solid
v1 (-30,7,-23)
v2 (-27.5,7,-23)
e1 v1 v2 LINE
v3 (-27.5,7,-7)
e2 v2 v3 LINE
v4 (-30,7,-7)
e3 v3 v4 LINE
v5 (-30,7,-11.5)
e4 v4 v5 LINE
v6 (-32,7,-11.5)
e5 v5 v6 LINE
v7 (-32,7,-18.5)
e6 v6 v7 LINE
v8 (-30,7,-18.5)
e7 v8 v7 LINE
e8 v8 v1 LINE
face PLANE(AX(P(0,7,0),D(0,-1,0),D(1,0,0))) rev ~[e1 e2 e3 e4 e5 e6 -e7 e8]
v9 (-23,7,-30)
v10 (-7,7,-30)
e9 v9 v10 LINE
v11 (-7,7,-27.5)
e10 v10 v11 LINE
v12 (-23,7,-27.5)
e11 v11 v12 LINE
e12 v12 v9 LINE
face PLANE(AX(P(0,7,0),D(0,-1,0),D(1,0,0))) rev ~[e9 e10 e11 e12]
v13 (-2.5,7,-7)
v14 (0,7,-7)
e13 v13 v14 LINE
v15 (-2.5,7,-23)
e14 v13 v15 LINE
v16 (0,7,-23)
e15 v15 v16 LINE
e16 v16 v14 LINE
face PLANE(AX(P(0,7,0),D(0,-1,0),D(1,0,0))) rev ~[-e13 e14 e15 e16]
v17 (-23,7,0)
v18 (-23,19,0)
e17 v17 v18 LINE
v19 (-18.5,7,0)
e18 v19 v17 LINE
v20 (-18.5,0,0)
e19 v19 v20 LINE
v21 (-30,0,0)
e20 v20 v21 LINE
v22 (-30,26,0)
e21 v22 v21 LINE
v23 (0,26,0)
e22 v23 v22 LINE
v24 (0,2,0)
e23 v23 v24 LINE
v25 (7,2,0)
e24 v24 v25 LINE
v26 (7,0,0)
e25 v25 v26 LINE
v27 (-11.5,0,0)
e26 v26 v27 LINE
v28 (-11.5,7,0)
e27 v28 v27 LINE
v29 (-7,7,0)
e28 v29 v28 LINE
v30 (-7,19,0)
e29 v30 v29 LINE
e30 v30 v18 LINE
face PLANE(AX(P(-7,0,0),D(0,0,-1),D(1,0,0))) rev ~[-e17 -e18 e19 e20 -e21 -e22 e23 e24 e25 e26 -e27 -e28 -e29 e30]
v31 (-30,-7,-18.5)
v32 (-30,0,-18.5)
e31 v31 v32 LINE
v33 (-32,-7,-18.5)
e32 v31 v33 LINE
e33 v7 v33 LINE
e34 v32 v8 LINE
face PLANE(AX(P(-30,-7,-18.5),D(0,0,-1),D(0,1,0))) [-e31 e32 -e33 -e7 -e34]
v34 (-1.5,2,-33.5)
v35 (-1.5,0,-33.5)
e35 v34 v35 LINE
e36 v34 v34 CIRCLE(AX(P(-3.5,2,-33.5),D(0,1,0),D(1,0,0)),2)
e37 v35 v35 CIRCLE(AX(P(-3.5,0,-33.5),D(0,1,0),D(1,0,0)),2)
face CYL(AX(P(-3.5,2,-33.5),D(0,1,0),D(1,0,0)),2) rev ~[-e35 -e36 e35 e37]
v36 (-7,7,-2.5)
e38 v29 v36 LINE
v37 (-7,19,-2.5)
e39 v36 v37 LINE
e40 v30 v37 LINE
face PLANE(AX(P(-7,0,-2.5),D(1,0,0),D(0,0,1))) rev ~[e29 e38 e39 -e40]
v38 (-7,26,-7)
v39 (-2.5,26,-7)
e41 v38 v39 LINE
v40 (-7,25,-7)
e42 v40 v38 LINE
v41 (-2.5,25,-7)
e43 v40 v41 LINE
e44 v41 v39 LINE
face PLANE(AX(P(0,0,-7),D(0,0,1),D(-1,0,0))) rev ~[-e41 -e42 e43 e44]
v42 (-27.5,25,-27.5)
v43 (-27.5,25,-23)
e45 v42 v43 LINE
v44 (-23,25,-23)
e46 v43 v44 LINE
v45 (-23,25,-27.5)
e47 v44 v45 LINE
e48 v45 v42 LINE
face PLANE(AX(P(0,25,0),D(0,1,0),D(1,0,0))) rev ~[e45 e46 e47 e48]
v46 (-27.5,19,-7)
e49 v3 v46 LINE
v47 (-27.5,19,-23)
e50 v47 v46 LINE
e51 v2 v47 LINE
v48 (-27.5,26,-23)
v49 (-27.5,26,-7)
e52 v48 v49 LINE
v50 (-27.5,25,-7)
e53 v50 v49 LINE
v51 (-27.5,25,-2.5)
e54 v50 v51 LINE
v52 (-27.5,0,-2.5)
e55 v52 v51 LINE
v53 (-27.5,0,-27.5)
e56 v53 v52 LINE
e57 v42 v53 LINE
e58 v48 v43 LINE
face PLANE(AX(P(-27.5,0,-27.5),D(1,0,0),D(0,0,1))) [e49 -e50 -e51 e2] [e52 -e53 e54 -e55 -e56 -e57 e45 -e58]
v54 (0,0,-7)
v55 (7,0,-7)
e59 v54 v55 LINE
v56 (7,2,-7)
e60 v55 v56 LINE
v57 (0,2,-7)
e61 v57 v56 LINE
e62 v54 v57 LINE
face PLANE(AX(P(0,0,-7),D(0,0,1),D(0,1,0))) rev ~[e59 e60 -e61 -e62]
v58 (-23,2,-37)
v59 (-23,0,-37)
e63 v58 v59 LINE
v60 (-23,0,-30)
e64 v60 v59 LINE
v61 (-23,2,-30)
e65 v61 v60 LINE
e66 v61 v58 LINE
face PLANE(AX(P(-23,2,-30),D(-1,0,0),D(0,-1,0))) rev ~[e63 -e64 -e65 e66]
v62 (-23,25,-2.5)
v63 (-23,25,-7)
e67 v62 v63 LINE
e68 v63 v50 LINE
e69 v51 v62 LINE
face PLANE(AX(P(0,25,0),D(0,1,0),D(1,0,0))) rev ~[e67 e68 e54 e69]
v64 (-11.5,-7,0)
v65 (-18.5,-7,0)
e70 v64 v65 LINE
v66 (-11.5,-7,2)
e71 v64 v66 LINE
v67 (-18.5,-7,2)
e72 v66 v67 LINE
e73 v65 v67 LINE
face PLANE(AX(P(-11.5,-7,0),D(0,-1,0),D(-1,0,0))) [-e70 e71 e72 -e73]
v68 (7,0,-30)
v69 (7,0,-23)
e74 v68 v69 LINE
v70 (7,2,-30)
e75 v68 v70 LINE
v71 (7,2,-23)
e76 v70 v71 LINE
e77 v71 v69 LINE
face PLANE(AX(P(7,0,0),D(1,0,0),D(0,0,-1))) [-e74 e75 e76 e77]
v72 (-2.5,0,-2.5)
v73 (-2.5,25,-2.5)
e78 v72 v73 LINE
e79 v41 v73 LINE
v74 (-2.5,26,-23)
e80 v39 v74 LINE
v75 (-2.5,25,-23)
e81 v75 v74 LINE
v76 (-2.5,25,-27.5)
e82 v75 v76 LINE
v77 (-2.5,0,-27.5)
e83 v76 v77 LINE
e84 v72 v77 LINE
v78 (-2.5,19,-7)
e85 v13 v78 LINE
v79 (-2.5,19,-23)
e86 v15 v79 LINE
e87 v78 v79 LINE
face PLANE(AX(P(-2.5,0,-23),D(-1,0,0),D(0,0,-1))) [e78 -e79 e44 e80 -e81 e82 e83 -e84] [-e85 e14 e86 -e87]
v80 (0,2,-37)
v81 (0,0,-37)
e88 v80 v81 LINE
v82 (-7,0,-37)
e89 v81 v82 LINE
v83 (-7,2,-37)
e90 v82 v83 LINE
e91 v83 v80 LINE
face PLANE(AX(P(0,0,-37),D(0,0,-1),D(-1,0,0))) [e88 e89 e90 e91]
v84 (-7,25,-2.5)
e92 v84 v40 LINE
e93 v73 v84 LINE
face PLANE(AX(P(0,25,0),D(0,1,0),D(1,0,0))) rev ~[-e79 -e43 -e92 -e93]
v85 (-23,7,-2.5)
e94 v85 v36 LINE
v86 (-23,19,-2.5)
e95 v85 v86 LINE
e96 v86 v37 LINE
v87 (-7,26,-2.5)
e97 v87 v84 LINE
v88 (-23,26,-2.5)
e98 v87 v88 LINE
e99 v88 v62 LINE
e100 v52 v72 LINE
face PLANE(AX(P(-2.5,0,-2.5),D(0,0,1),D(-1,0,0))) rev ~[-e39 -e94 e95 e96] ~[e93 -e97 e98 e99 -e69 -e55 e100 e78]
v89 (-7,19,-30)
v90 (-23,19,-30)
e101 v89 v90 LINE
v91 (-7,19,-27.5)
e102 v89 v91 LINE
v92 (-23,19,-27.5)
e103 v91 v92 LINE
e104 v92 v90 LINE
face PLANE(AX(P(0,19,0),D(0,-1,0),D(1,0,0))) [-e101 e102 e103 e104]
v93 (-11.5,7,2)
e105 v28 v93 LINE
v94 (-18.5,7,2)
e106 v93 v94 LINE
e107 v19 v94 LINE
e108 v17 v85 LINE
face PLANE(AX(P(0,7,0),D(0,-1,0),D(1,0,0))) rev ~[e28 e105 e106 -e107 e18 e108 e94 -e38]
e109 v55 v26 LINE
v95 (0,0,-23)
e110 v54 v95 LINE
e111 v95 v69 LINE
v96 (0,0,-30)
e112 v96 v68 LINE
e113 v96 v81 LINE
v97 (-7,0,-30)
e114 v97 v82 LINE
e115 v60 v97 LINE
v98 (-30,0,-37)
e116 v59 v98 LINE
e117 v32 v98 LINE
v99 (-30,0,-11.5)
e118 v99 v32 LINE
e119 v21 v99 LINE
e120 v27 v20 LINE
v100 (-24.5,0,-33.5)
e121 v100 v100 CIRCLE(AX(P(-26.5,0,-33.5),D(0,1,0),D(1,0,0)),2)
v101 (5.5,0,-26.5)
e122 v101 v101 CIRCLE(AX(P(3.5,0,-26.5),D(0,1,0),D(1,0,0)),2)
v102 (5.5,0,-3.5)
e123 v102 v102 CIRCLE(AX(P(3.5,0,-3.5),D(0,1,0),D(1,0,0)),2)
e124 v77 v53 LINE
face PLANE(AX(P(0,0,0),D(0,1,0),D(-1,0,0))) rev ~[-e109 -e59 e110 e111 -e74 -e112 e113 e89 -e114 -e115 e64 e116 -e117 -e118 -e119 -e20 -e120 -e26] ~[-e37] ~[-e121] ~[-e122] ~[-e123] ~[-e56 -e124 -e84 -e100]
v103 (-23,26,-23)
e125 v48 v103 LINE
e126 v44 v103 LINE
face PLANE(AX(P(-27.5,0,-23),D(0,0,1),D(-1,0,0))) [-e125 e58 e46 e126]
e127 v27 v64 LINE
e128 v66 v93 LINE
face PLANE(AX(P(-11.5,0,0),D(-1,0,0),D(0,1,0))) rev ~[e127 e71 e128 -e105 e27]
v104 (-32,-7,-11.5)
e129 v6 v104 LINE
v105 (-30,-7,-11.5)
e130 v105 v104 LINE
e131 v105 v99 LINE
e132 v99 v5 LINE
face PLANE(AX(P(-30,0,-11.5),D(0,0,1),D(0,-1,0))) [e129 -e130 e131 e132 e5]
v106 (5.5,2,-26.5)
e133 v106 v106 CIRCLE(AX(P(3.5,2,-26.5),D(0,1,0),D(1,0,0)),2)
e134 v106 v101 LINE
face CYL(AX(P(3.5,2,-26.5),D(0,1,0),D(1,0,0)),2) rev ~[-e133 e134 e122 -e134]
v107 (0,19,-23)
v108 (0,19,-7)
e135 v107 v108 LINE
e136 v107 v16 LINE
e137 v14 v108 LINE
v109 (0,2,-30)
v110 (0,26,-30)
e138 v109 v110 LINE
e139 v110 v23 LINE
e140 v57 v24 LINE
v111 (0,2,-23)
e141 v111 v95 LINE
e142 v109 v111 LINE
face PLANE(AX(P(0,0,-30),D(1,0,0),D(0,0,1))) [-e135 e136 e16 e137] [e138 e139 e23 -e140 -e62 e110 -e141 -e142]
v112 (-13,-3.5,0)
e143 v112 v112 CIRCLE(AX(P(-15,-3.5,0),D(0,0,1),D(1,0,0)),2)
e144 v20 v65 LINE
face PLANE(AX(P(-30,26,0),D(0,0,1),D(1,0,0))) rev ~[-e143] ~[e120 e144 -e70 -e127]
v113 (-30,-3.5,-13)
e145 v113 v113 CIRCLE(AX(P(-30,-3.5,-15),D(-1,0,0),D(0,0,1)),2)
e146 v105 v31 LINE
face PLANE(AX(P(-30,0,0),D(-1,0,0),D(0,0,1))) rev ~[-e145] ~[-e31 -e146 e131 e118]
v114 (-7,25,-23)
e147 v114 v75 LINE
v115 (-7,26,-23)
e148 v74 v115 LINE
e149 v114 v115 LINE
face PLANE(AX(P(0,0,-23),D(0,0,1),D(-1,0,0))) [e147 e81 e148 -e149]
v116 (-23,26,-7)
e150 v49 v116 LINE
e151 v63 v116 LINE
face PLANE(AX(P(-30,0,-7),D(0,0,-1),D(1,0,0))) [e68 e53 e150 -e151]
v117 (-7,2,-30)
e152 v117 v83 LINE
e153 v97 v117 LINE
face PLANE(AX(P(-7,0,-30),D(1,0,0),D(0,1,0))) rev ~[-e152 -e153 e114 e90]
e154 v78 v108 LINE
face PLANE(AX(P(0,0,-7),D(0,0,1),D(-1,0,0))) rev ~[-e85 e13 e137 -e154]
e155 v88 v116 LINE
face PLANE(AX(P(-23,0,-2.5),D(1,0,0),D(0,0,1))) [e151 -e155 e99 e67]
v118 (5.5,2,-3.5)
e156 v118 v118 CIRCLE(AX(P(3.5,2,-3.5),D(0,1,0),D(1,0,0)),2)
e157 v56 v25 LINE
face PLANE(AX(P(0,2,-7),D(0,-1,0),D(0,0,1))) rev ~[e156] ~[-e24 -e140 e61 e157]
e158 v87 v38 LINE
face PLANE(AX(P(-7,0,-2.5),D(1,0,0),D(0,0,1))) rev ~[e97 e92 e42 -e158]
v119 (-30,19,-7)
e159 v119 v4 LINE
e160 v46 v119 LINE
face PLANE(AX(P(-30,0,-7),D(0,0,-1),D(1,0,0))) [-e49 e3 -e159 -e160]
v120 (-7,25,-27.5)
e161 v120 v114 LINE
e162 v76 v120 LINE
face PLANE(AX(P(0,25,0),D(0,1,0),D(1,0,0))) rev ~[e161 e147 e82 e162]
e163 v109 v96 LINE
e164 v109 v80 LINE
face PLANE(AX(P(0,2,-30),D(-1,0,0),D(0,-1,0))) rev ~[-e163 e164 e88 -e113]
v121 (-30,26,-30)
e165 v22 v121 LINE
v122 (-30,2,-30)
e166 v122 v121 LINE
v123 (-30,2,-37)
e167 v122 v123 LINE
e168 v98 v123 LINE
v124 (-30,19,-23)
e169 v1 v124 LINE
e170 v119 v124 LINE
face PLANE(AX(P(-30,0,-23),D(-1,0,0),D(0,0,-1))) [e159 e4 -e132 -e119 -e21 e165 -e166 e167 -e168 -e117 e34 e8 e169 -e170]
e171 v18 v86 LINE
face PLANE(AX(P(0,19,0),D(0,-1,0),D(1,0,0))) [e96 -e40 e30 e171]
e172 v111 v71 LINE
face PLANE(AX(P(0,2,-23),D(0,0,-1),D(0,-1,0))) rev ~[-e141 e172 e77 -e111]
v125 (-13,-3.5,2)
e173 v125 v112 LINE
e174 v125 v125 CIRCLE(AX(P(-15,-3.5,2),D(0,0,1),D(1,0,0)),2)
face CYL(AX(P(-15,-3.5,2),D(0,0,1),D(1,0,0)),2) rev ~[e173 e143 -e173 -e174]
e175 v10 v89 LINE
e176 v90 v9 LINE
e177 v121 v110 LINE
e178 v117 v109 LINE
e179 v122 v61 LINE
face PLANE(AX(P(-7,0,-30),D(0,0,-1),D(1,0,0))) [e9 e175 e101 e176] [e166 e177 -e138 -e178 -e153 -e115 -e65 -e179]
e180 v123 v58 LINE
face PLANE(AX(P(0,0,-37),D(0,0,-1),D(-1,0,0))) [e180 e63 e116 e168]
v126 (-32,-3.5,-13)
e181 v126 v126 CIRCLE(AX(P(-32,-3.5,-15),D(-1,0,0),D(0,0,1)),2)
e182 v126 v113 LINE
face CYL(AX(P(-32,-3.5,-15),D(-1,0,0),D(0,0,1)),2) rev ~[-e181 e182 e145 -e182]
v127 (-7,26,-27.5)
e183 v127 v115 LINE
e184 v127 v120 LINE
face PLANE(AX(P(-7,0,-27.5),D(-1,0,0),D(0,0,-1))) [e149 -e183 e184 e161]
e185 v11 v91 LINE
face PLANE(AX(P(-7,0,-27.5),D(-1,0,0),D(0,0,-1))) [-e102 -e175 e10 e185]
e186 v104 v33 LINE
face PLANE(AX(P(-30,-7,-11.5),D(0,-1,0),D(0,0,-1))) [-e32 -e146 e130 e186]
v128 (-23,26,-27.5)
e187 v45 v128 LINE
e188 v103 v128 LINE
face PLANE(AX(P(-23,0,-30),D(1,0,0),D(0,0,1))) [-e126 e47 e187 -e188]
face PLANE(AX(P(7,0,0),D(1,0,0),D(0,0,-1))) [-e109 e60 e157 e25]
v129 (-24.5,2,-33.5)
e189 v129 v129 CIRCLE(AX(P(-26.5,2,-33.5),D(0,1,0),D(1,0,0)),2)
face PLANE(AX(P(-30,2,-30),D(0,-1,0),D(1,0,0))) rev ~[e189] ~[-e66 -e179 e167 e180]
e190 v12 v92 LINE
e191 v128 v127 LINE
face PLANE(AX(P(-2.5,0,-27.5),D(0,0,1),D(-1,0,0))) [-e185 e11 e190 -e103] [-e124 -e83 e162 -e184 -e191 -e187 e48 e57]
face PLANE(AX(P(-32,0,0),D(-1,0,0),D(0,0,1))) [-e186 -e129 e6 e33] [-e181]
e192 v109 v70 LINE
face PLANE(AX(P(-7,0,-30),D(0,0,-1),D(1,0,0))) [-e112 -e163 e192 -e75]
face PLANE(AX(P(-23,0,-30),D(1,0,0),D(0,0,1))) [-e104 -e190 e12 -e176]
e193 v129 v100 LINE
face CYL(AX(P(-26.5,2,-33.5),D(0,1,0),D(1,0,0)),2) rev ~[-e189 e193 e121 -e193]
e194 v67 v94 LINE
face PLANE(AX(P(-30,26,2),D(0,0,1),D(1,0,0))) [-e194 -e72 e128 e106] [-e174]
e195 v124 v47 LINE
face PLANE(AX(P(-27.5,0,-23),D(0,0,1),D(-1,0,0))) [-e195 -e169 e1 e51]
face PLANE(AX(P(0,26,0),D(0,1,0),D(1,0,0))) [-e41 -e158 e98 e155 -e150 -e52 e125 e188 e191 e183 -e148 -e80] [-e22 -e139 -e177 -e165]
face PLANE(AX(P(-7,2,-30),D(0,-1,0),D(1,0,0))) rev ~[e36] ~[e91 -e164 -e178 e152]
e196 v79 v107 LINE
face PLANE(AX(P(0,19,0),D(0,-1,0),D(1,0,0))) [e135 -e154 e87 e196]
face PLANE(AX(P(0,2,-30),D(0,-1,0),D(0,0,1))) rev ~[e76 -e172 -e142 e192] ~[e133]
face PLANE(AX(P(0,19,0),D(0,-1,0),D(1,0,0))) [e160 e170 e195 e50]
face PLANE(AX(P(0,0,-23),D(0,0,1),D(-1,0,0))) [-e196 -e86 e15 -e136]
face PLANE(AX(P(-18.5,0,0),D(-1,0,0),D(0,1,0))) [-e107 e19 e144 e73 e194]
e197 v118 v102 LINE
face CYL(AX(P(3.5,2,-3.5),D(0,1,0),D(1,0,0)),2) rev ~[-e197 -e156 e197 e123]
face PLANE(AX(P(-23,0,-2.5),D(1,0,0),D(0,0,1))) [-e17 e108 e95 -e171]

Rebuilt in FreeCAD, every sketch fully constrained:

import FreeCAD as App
import Part
import Sketcher
Q = App.Units.Quantity

doc = App.newDocument("Part")
body = doc.addObject("PartDesign::Body", "Body")
body.AllowCompound = True

sketch1 = doc.addObject("Sketcher::SketchObject", "Sketch")
body.addObject(sketch1)
sketch1.AttachmentSupport = (doc.XZ_Plane, [""])
sketch1.MapMode = "FlatFace"
sketch1.addGeometry([
    Part.LineSegment(App.Vector(-7, 0, 0), App.Vector(0, 0, 0)),
    Part.LineSegment(App.Vector(0, 0, 0), App.Vector(0, -7, 0)),
    Part.LineSegment(App.Vector(0, -7, 0), App.Vector(-2.5, -7, 0)),
    Part.LineSegment(App.Vector(-2.5, -7, 0), App.Vector(-2.5, -2.5, 0)),
    Part.LineSegment(App.Vector(-2.5, -2.5, 0), App.Vector(-7, -2.5, 0)),
    Part.LineSegment(App.Vector(-7, -2.5, 0), App.Vector(-7, 0, 0)),
    Part.LineSegment(App.Vector(0, -23, 0), App.Vector(0, -30, 0)),
    Part.LineSegment(App.Vector(0, -30, 0), App.Vector(-7, -30, 0)),
    Part.LineSegment(App.Vector(-7, -30, 0), App.Vector(-7, -27.5, 0)),
    Part.LineSegment(App.Vector(-7, -27.5, 0), App.Vector(-2.5, -27.5, 0)),
    Part.LineSegment(App.Vector(-2.5, -27.5, 0), App.Vector(-2.5, -23, 0)),
    Part.LineSegment(App.Vector(-2.5, -23, 0), App.Vector(0, -23, 0)),
    Part.LineSegment(App.Vector(-30, 0, 0), App.Vector(-23, 0, 0)),
    Part.LineSegment(App.Vector(-23, 0, 0), App.Vector(-23, -2.5, 0)),
    Part.LineSegment(App.Vector(-23, -2.5, 0), App.Vector(-27.5, -2.5, 0)),
    Part.LineSegment(App.Vector(-27.5, -2.5, 0), App.Vector(-27.5, -7, 0)),
    Part.LineSegment(App.Vector(-27.5, -7, 0), App.Vector(-30, -7, 0)),
    Part.LineSegment(App.Vector(-30, -7, 0), App.Vector(-30, 0, 0)),
    Part.LineSegment(App.Vector(-30, -30, 0), App.Vector(-30, -23, 0)),
    Part.LineSegment(App.Vector(-30, -23, 0), App.Vector(-27.5, -23, 0)),
    Part.LineSegment(App.Vector(-27.5, -23, 0), App.Vector(-27.5, -27.5, 0)),
    Part.LineSegment(App.Vector(-27.5, -27.5, 0), App.Vector(-23, -27.5, 0)),
    Part.LineSegment(App.Vector(-23, -27.5, 0), App.Vector(-23, -30, 0)),
    Part.LineSegment(App.Vector(-23, -30, 0), App.Vector(-30, -30, 0)),
], False)
sketch1.addConstraint([
    Sketcher.Constraint("Coincident", 0, 2, 1, 1),
    Sketcher.Constraint("Coincident", 1, 2, 2, 1),
    Sketcher.Constraint("Coincident", 2, 2, 3, 1),
    Sketcher.Constraint("Coincident", 3, 2, 4, 1),
    Sketcher.Constraint("Coincident", 4, 2, 5, 1),
    Sketcher.Constraint("Coincident", 5, 2, 0, 1),
    Sketcher.Constraint("Coincident", 6, 2, 7, 1),
    Sketcher.Constraint("Coincident", 7, 2, 8, 1),
    Sketcher.Constraint("Coincident", 8, 2, 9, 1),
    Sketcher.Constraint("Coincident", 9, 2, 10, 1),
    Sketcher.Constraint("Coincident", 10, 2, 11, 1),
    Sketcher.Constraint("Coincident", 11, 2, 6, 1),
    Sketcher.Constraint("Coincident", 12, 2, 13, 1),
    Sketcher.Constraint("Coincident", 13, 2, 14, 1),
    Sketcher.Constraint("Coincident", 14, 2, 15, 1),
    Sketcher.Constraint("Coincident", 15, 2, 16, 1),
    Sketcher.Constraint("Coincident", 16, 2, 17, 1),
    Sketcher.Constraint("Coincident", 17, 2, 12, 1),
    Sketcher.Constraint("Coincident", 18, 2, 19, 1),
    Sketcher.Constraint("Coincident", 19, 2, 20, 1),
    Sketcher.Constraint("Coincident", 20, 2, 21, 1),
    Sketcher.Constraint("Coincident", 21, 2, 22, 1),
    Sketcher.Constraint("Coincident", 22, 2, 23, 1),
    Sketcher.Constraint("Coincident", 23, 2, 18, 1),
    Sketcher.Constraint("Horizontal", 0),
    Sketcher.Constraint("Vertical", 1),
    Sketcher.Constraint("Horizontal", 2),
    Sketcher.Constraint("Vertical", 3),
    Sketcher.Constraint("Horizontal", 4),
    Sketcher.Constraint("Vertical", 5),
    Sketcher.Constraint("Vertical", 6),
    Sketcher.Constraint("Horizontal", 7),
    Sketcher.Constraint("Vertical", 8),
    Sketcher.Constraint("Horizontal", 9),
    Sketcher.Constraint("Vertical", 10),
    Sketcher.Constraint("Horizontal", 11),
    Sketcher.Constraint("Horizontal", 12),
    Sketcher.Constraint("Vertical", 13),
    Sketcher.Constraint("Horizontal", 14),
    Sketcher.Constraint("Vertical", 15),
    Sketcher.Constraint("Horizontal", 16),
    Sketcher.Constraint("Vertical", 17),
    Sketcher.Constraint("Vertical", 18),
    Sketcher.Constraint("Horizontal", 19),
    Sketcher.Constraint("Vertical", 20),
    Sketcher.Constraint("Horizontal", 21),
    Sketcher.Constraint("Vertical", 22),
    Sketcher.Constraint("Horizontal", 23),
    Sketcher.Constraint("Coincident", 0, 2, -1, 1),
    Sketcher.Constraint("PointOnObject", 6, 2, -2),
    Sketcher.Constraint("PointOnObject", 12, 2, -1),
    Sketcher.Constraint("Horizontal", 4, 2, 13, 2),
    Sketcher.Constraint("Horizontal", 2, 2, 15, 2),
    Sketcher.Constraint("Horizontal", 11, 2, 18, 2),
    Sketcher.Constraint("Horizontal", 9, 2, 20, 2),
    Sketcher.Constraint("Horizontal", 7, 2, 22, 2),
    Sketcher.Constraint("Vertical", 5, 2, 7, 2),
    Sketcher.Constraint("Vertical", 3, 2, 9, 2),
    Sketcher.Constraint("Vertical", 17, 2, 18, 2),
    Sketcher.Constraint("Vertical", 15, 2, 19, 2),
    Sketcher.Constraint("Vertical", 13, 2, 21, 2),
    Sketcher.Constraint("Equal", 7, 12),
    Sketcher.Constraint("Equal", 9, 14),
    Sketcher.Constraint("Equal", 23, 1),
    Sketcher.Constraint("Equal", 21, 3),
    Sketcher.Constraint("Equal", 1, 6),
    Sketcher.Constraint("Equal", 5, 8),
    Sketcher.Constraint("DistanceX", 0, 1, 0, 2, Q("7 mm")),
    Sketcher.Constraint("DistanceX", 2, 2, 2, 1, Q("2.5 mm")),
    Sketcher.Constraint("DistanceY", 6, 2, -1, 1, Q("30 mm")),
    Sketcher.Constraint("DistanceX", 16, 2, -1, 1, Q("30 mm")),
])
pad1 = doc.addObject("PartDesign::Pad", "Pad")
body.addObject(pad1)
pad1.Profile = sketch1
pad1.Length = 25
pad1.Reversed = True

sketch2 = doc.addObject("Sketcher::SketchObject", "Sketch001")
body.addObject(sketch2)
sketch2.AttachmentSupport = (doc.XZ_Plane, [""])
sketch2.MapMode = "FlatFace"
sketch2.addGeometry([
    Part.LineSegment(App.Vector(0, -30, 0), App.Vector(0, 0, 0)),
    Part.LineSegment(App.Vector(0, 0, 0), App.Vector(-30, 0, 0)),
    Part.LineSegment(App.Vector(-30, 0, 0), App.Vector(-30, -30, 0)),
    Part.LineSegment(App.Vector(-30, -30, 0), App.Vector(0, -30, 0)),
    Part.LineSegment(App.Vector(-28, -28, 0), App.Vector(-28, -2, 0)),
    Part.LineSegment(App.Vector(-28, -2, 0), App.Vector(-2, -2, 0)),
    Part.LineSegment(App.Vector(-2, -2, 0), App.Vector(-2, -28, 0)),
    Part.LineSegment(App.Vector(-2, -28, 0), App.Vector(-28, -28, 0)),
], False)
sketch2.addConstraint([
    Sketcher.Constraint("Coincident", 0, 2, 1, 1),
    Sketcher.Constraint("Coincident", 1, 2, 2, 1),
    Sketcher.Constraint("Coincident", 2, 2, 3, 1),
    Sketcher.Constraint("Coincident", 3, 2, 0, 1),
    Sketcher.Constraint("Coincident", 4, 2, 5, 1),
    Sketcher.Constraint("Coincident", 5, 2, 6, 1),
    Sketcher.Constraint("Coincident", 6, 2, 7, 1),
    Sketcher.Constraint("Coincident", 7, 2, 4, 1),
    Sketcher.Constraint("Vertical", 0),
    Sketcher.Constraint("Horizontal", 1),
    Sketcher.Constraint("Vertical", 2),
    Sketcher.Constraint("Horizontal", 3),
    Sketcher.Constraint("Vertical", 4),
    Sketcher.Constraint("Horizontal", 5),
    Sketcher.Constraint("Vertical", 6),
    Sketcher.Constraint("Horizontal", 7),
    Sketcher.Constraint("Coincident", 0, 2, -1, 1),
    Sketcher.Constraint("Equal", 3, 0),
    Sketcher.Constraint("Equal", 7, 4),
    Sketcher.Constraint("DistanceX", 1, 2, 1, 1, Q("30 mm")),
    Sketcher.Constraint("DistanceX", 5, 1, 5, 2, Q("25 mm")),
    Sketcher.Constraint("DistanceX", 4, 2, -1, 1, Q("27.5 mm")),
    Sketcher.Constraint("DistanceY", 4, 2, -1, 1, Q("2.5 mm")),
])
pad2 = doc.addObject("PartDesign::Pad", "Pad001")
body.addObject(pad2)
pad2.Profile = sketch2
pad2.Length = 7
pad2.Reversed = True

sketch3 = doc.addObject("Sketcher::SketchObject", "Sketch002")
body.addObject(sketch3)
sketch3.AttachmentSupport = (doc.XZ_Plane, [""])
sketch3.MapMode = "FlatFace"
sketch3.AttachmentOffset = App.Placement(App.Vector(0, 0, -25), App.Rotation())
sketch3.addGeometry([
    Part.LineSegment(App.Vector(0, -30, 0), App.Vector(-7, -30, 0)),
    Part.LineSegment(App.Vector(-7, -30, 0), App.Vector(-7, -23, 0)),
    Part.LineSegment(App.Vector(-7, -23, 0), App.Vector(0, -23, 0)),
    Part.LineSegment(App.Vector(0, -23, 0), App.Vector(0, -30, 0)),
    Part.LineSegment(App.Vector(-30, -30, 0), App.Vector(-30, -23, 0)),
    Part.LineSegment(App.Vector(-30, -23, 0), App.Vector(-23, -23, 0)),
    Part.LineSegment(App.Vector(-23, -23, 0), App.Vector(-23, -30, 0)),
    Part.LineSegment(App.Vector(-23, -30, 0), App.Vector(-30, -30, 0)),
    Part.LineSegment(App.Vector(-30, 0, 0), App.Vector(-23, 0, 0)),
    Part.LineSegment(App.Vector(-23, 0, 0), App.Vector(-23, -7, 0)),
    Part.LineSegment(App.Vector(-23, -7, 0), App.Vector(-30, -7, 0)),
    Part.LineSegment(App.Vector(-30, -7, 0), App.Vector(-30, 0, 0)),
    Part.LineSegment(App.Vector(-7, 0, 0), App.Vector(0, 0, 0)),
    Part.LineSegment(App.Vector(0, 0, 0), App.Vector(0, -7, 0)),
    Part.LineSegment(App.Vector(0, -7, 0), App.Vector(-7, -7, 0)),
    Part.LineSegment(App.Vector(-7, -7, 0), App.Vector(-7, 0, 0)),
], False)
sketch3.addConstraint([
    Sketcher.Constraint("Coincident", 0, 2, 1, 1),
    Sketcher.Constraint("Coincident", 1, 2, 2, 1),
    Sketcher.Constraint("Coincident", 2, 2, 3, 1),
    Sketcher.Constraint("Coincident", 3, 2, 0, 1),
    Sketcher.Constraint("Coincident", 4, 2, 5, 1),
    Sketcher.Constraint("Coincident", 5, 2, 6, 1),
    Sketcher.Constraint("Coincident", 6, 2, 7, 1),
    Sketcher.Constraint("Coincident", 7, 2, 4, 1),
    Sketcher.Constraint("Coincident", 8, 2, 9, 1),
    Sketcher.Constraint("Coincident", 9, 2, 10, 1),
    Sketcher.Constraint("Coincident", 10, 2, 11, 1),
    Sketcher.Constraint("Coincident", 11, 2, 8, 1),
    Sketcher.Constraint("Coincident", 12, 2, 13, 1),
    Sketcher.Constraint("Coincident", 13, 2, 14, 1),
    Sketcher.Constraint("Coincident", 14, 2, 15, 1),
    Sketcher.Constraint("Coincident", 15, 2, 12, 1),
    Sketcher.Constraint("Horizontal", 0),
    Sketcher.Constraint("Vertical", 1),
    Sketcher.Constraint("Horizontal", 2),
    Sketcher.Constraint("Vertical", 3),
    Sketcher.Constraint("Vertical", 4),
    Sketcher.Constraint("Horizontal", 5),
    Sketcher.Constraint("Vertical", 6),
    Sketcher.Constraint("Horizontal", 7),
    Sketcher.Constraint("Horizontal", 8),
    Sketcher.Constraint("Vertical", 9),
    Sketcher.Constraint("Horizontal", 10),
    Sketcher.Constraint("Vertical", 11),
    Sketcher.Constraint("Horizontal", 12),
    Sketcher.Constraint("Vertical", 13),
    Sketcher.Constraint("Horizontal", 14),
    Sketcher.Constraint("Vertical", 15),
    Sketcher.Constraint("Coincident", 12, 2, -1, 1),
    Sketcher.Constraint("PointOnObject", 2, 2, -2),
    Sketcher.Constraint("PointOnObject", 8, 2, -1),
    Sketcher.Constraint("Horizontal", 2, 2, 4, 2),
    Sketcher.Constraint("Horizontal", 3, 2, 6, 2),
    Sketcher.Constraint("Horizontal", 10, 2, 13, 2),
    Sketcher.Constraint("Vertical", 6, 2, 8, 2),
    Sketcher.Constraint("Vertical", 7, 2, 10, 2),
    Sketcher.Constraint("Vertical", 1, 2, 14, 2),
    Sketcher.Constraint("Equal", 2, 5),
    Sketcher.Constraint("Equal", 14, 1),
    Sketcher.Constraint("Equal", 6, 9),
    Sketcher.Constraint("DistanceX", 0, 2, 0, 1, Q("7 mm")),
    Sketcher.Constraint("DistanceY", 0, 2, -1, 1, Q("30 mm")),
    Sketcher.Constraint("DistanceX", 4, 2, -1, 1, Q("30 mm")),
])
pad3 = doc.addObject("PartDesign::Pad", "Pad002")
body.addObject(pad3)
pad3.Profile = sketch3
pad3.Length = 1
pad3.Reversed = True

sketch4 = doc.addObject("Sketcher::SketchObject", "Sketch003")
body.addObject(sketch4)
sketch4.AttachmentSupport = (doc.YZ_Plane, [""])
sketch4.MapMode = "FlatFace"
sketch4.addGeometry([
    Part.LineSegment(App.Vector(2, 0, 0), App.Vector(0, 0, 0)),
    Part.LineSegment(App.Vector(0, 0, 0), App.Vector(0, -7, 0)),
    Part.LineSegment(App.Vector(0, -7, 0), App.Vector(2, -7, 0)),
    Part.LineSegment(App.Vector(2, -7, 0), App.Vector(2, 0, 0)),
    Part.LineSegment(App.Vector(2, -23, 0), App.Vector(0, -23, 0)),
    Part.LineSegment(App.Vector(0, -23, 0), App.Vector(0, -30, 0)),
    Part.LineSegment(App.Vector(0, -30, 0), App.Vector(2, -30, 0)),
    Part.LineSegment(App.Vector(2, -30, 0), App.Vector(2, -23, 0)),
], False)
sketch4.addConstraint([
    Sketcher.Constraint("Coincident", 0, 2, 1, 1),
    Sketcher.Constraint("Coincident", 1, 2, 2, 1),
    Sketcher.Constraint("Coincident", 2, 2, 3, 1),
    Sketcher.Constraint("Coincident", 3, 2, 0, 1),
    Sketcher.Constraint("Coincident", 4, 2, 5, 1),
    Sketcher.Constraint("Coincident", 5, 2, 6, 1),
    Sketcher.Constraint("Coincident", 6, 2, 7, 1),
    Sketcher.Constraint("Coincident", 7, 2, 4, 1),
    Sketcher.Constraint("Horizontal", 0),
    Sketcher.Constraint("Vertical", 1),
    Sketcher.Constraint("Horizontal", 2),
    Sketcher.Constraint("Vertical", 3),
    Sketcher.Constraint("Horizontal", 4),
    Sketcher.Constraint("Vertical", 5),
    Sketcher.Constraint("Horizontal", 6),
    Sketcher.Constraint("Vertical", 7),
    Sketcher.Constraint("Coincident", 0, 2, -1, 1),
    Sketcher.Constraint("PointOnObject", 4, 2, -2),
    Sketcher.Constraint("Vertical", 3, 2, 6, 2),
    Sketcher.Constraint("Equal", 3, 5),
    Sketcher.Constraint("DistanceX", 0, 2, 0, 1, Q("2 mm")),
    Sketcher.Constraint("DistanceY", 1, 2, 1, 1, Q("7 mm")),
    Sketcher.Constraint("DistanceY", 4, 2, -1, 1, Q("23 mm")),
])
pad4 = doc.addObject("PartDesign::Pad", "Pad003")
body.addObject(pad4)
pad4.Profile = sketch4
pad4.Length = 7

sketch5 = doc.addObject("Sketcher::SketchObject", "Sketch004")
body.addObject(sketch5)
sketch5.AttachmentSupport = (doc.XY_Plane, [""])
sketch5.MapMode = "FlatFace"
sketch5.AttachmentOffset = App.Placement(App.Vector(0, 0, -30), App.Rotation())
sketch5.addGeometry([
    Part.LineSegment(App.Vector(0, 2, 0), App.Vector(0, 0, 0)),
    Part.LineSegment(App.Vector(0, 0, 0), App.Vector(-7, 0, 0)),
    Part.LineSegment(App.Vector(-7, 0, 0), App.Vector(-7, 2, 0)),
    Part.LineSegment(App.Vector(-7, 2, 0), App.Vector(0, 2, 0)),
    Part.LineSegment(App.Vector(-23, 2, 0), App.Vector(-23, 0, 0)),
    Part.LineSegment(App.Vector(-23, 0, 0), App.Vector(-30, 0, 0)),
    Part.LineSegment(App.Vector(-30, 0, 0), App.Vector(-30, 2, 0)),
    Part.LineSegment(App.Vector(-30, 2, 0), App.Vector(-23, 2, 0)),
], False)
sketch5.addConstraint([
    Sketcher.Constraint("Coincident", 0, 2, 1, 1),
    Sketcher.Constraint("Coincident", 1, 2, 2, 1),
    Sketcher.Constraint("Coincident", 2, 2, 3, 1),
    Sketcher.Constraint("Coincident", 3, 2, 0, 1),
    Sketcher.Constraint("Coincident", 4, 2, 5, 1),
    Sketcher.Constraint("Coincident", 5, 2, 6, 1),
    Sketcher.Constraint("Coincident", 6, 2, 7, 1),
    Sketcher.Constraint("Coincident", 7, 2, 4, 1),
    Sketcher.Constraint("Vertical", 0),
    Sketcher.Constraint("Horizontal", 1),
    Sketcher.Constraint("Vertical", 2),
    Sketcher.Constraint("Horizontal", 3),
    Sketcher.Constraint("Vertical", 4),
    Sketcher.Constraint("Horizontal", 5),
    Sketcher.Constraint("Vertical", 6),
    Sketcher.Constraint("Horizontal", 7),
    Sketcher.Constraint("Coincident", 0, 2, -1, 1),
    Sketcher.Constraint("PointOnObject", 4, 2, -1),
    Sketcher.Constraint("Horizontal", 3, 2, 6, 2),
    Sketcher.Constraint("Equal", 3, 5),
    Sketcher.Constraint("DistanceX", 1, 2, 1, 1, Q("7 mm")),
    Sketcher.Constraint("DistanceY", 0, 2, 0, 1, Q("2 mm")),
    Sketcher.Constraint("DistanceX", 4, 2, -1, 1, Q("23 mm")),
])
pad5 = doc.addObject("PartDesign::Pad", "Pad004")
body.addObject(pad5)
pad5.Profile = sketch5
pad5.Length = 7
pad5.Reversed = True

sketch6 = doc.addObject("Sketcher::SketchObject", "Sketch005")
body.addObject(sketch6)
sketch6.AttachmentSupport = (doc.XZ_Plane, [""])
sketch6.MapMode = "FlatFace"
sketch6.AttachmentOffset = App.Placement(App.Vector(0, 0, -2), App.Rotation())
sketch6.addGeometry(Part.Circle(App.Vector(3.5, -3.5, 0), App.Vector(0, 0, 1), 2), False)
sketch6.addConstraint([
    Sketcher.Constraint("Diameter", 0, Q("4 mm")),
    Sketcher.Constraint("DistanceX", -1, 1, 0, 3, Q("3.5 mm")),
    Sketcher.Constraint("DistanceY", 0, 3, -1, 1, Q("3.5 mm")),
])
pocket1 = doc.addObject("PartDesign::Pocket", "Pocket")
body.addObject(pocket1)
pocket1.Profile = sketch6
pocket1.Length = 2
pocket1.Reversed = True

sketch7 = doc.addObject("Sketcher::SketchObject", "Sketch006")
body.addObject(sketch7)
sketch7.AttachmentSupport = (doc.XZ_Plane, [""])
sketch7.MapMode = "FlatFace"
sketch7.AttachmentOffset = App.Placement(App.Vector(0, 0, -2), App.Rotation())
sketch7.addGeometry(Part.Circle(App.Vector(3.5, -26.5, 0), App.Vector(0, 0, 1), 2), False)
sketch7.addConstraint([
    Sketcher.Constraint("Diameter", 0, Q("4 mm")),
    Sketcher.Constraint("DistanceX", -1, 1, 0, 3, Q("3.5 mm")),
    Sketcher.Constraint("DistanceY", 0, 3, -1, 1, Q("26.5 mm")),
])
pocket2 = doc.addObject("PartDesign::Pocket", "Pocket001")
body.addObject(pocket2)
pocket2.Profile = sketch7
pocket2.Length = 2
pocket2.Reversed = True

sketch8 = doc.addObject("Sketcher::SketchObject", "Sketch007")
body.addObject(sketch8)
sketch8.AttachmentSupport = (doc.XZ_Plane, [""])
sketch8.MapMode = "FlatFace"
sketch8.AttachmentOffset = App.Placement(App.Vector(0, 0, -2), App.Rotation())
sketch8.addGeometry([
    Part.Circle(App.Vector(-3.5, -33.5, 0), App.Vector(0, 0, 1), 2),
    Part.Circle(App.Vector(-26.5, -33.5, 0), App.Vector(0, 0, 1), 2),
], False)
sketch8.addConstraint([
    Sketcher.Constraint("Equal", 0, 1),
    Sketcher.Constraint("Horizontal", 0, 3, 1, 3),
    Sketcher.Constraint("Diameter", 0, Q("4 mm")),
    Sketcher.Constraint("DistanceX", 1, 3, 0, 3, Q("23 mm")),
    Sketcher.Constraint("DistanceX", 0, 3, -1, 1, Q("3.5 mm")),
    Sketcher.Constraint("DistanceY", 0, 3, -1, 1, Q("33.5 mm")),
])
pocket3 = doc.addObject("PartDesign::Pocket", "Pocket002")
body.addObject(pocket3)
pocket3.Profile = sketch8
pocket3.Length = 2
pocket3.Reversed = True

sketch9 = doc.addObject("Sketcher::SketchObject", "Sketch008")
body.addObject(sketch9)
sketch9.AttachmentSupport = (doc.XZ_Plane, [""])
sketch9.MapMode = "FlatFace"
sketch9.AttachmentOffset = App.Placement(App.Vector(0, 0, -25), App.Rotation())
sketch9.addGeometry([
    Part.LineSegment(App.Vector(-30, -30, 0), App.Vector(0, -30, 0)),
    Part.LineSegment(App.Vector(0, -30, 0), App.Vector(0, 0, 0)),
    Part.LineSegment(App.Vector(0, 0, 0), App.Vector(-30, 0, 0)),
    Part.LineSegment(App.Vector(-30, 0, 0), App.Vector(-30, -30, 0)),
    Part.LineSegment(App.Vector(-28, -2, 0), App.Vector(-2, -2, 0)),
    Part.LineSegment(App.Vector(-2, -2, 0), App.Vector(-2, -28, 0)),
    Part.LineSegment(App.Vector(-2, -28, 0), App.Vector(-28, -28, 0)),
    Part.LineSegment(App.Vector(-28, -28, 0), App.Vector(-28, -2, 0)),
], False)
sketch9.addConstraint([
    Sketcher.Constraint("Coincident", 0, 2, 1, 1),
    Sketcher.Constraint("Coincident", 1, 2, 2, 1),
    Sketcher.Constraint("Coincident", 2, 2, 3, 1),
    Sketcher.Constraint("Coincident", 3, 2, 0, 1),
    Sketcher.Constraint("Coincident", 4, 2, 5, 1),
    Sketcher.Constraint("Coincident", 5, 2, 6, 1),
    Sketcher.Constraint("Coincident", 6, 2, 7, 1),
    Sketcher.Constraint("Coincident", 7, 2, 4, 1),
    Sketcher.Constraint("Horizontal", 0),
    Sketcher.Constraint("Vertical", 1),
    Sketcher.Constraint("Horizontal", 2),
    Sketcher.Constraint("Vertical", 3),
    Sketcher.Constraint("Horizontal", 4),
    Sketcher.Constraint("Vertical", 5),
    Sketcher.Constraint("Horizontal", 6),
    Sketcher.Constraint("Vertical", 7),
    Sketcher.Constraint("Coincident", 1, 2, -1, 1),
    Sketcher.Constraint("Equal", 2, 1),
    Sketcher.Constraint("Equal", 6, 5),
    Sketcher.Constraint("DistanceX", 0, 1, 0, 2, Q("30 mm")),
    Sketcher.Constraint("DistanceX", 4, 1, 4, 2, Q("25 mm")),
    Sketcher.Constraint("DistanceX", 4, 2, -1, 1, Q("2.5 mm")),
    Sketcher.Constraint("DistanceY", 4, 2, -1, 1, Q("2.5 mm")),
])
pad6 = doc.addObject("PartDesign::Pad", "Pad005")
body.addObject(pad6)
pad6.Profile = sketch9
pad6.Type = "TwoLengths"
pad6.Length = 6
pad6.Length2 = 1

sketch10 = doc.addObject("Sketcher::SketchObject", "Sketch009")
body.addObject(sketch10)
sketch10.AttachmentSupport = (doc.YZ_Plane, [""])
sketch10.MapMode = "FlatFace"
sketch10.AttachmentOffset = App.Placement(App.Vector(0, 0, -30), App.Rotation())
sketch10.addGeometry([
    Part.LineSegment(App.Vector(-7, -12, 0), App.Vector(7, -12, 0)),
    Part.LineSegment(App.Vector(7, -12, 0), App.Vector(7, -18, 0)),
    Part.LineSegment(App.Vector(7, -18, 0), App.Vector(-7, -18, 0)),
    Part.LineSegment(App.Vector(-7, -18, 0), App.Vector(-7, -12, 0)),
], False)
sketch10.addConstraint([
    Sketcher.Constraint("Coincident", 0, 2, 1, 1),
    Sketcher.Constraint("Coincident", 1, 2, 2, 1),
    Sketcher.Constraint("Coincident", 2, 2, 3, 1),
    Sketcher.Constraint("Coincident", 3, 2, 0, 1),
    Sketcher.Constraint("Horizontal", 0),
    Sketcher.Constraint("Vertical", 1),
    Sketcher.Constraint("Horizontal", 2),
    Sketcher.Constraint("Vertical", 3),
    Sketcher.Constraint("DistanceY", 1, 2, 1, 1, Q("7 mm")),
    Sketcher.Constraint("DistanceX", -1, 1, 0, 2, Q("7 mm")),
    Sketcher.Constraint("DistanceX", 2, 2, -1, 1, Q("7 mm")),
    Sketcher.Constraint("DistanceY", 0, 2, -1, 1, Q("11.5 mm")),
])
pad7 = doc.addObject("PartDesign::Pad", "Pad006")
body.addObject(pad7)
pad7.Profile = sketch10
pad7.Length = 2
pad7.Reversed = True

sketch11 = doc.addObject("Sketcher::SketchObject", "Sketch010")
body.addObject(sketch11)
sketch11.AttachmentSupport = (doc.XY_Plane, [""])
sketch11.MapMode = "FlatFace"
sketch11.addGeometry([
    Part.LineSegment(App.Vector(-18, 7, 0), App.Vector(-18, -7, 0)),
    Part.LineSegment(App.Vector(-18, -7, 0), App.Vector(-12, -7, 0)),
    Part.LineSegment(App.Vector(-12, -7, 0), App.Vector(-12, 7, 0)),
    Part.LineSegment(App.Vector(-12, 7, 0), App.Vector(-18, 7, 0)),
], False)
sketch11.addConstraint([
    Sketcher.Constraint("Coincident", 0, 2, 1, 1),
    Sketcher.Constraint("Coincident", 1, 2, 2, 1),
    Sketcher.Constraint("Coincident", 2, 2, 3, 1),
    Sketcher.Constraint("Coincident", 3, 2, 0, 1),
    Sketcher.Constraint("Vertical", 0),
    Sketcher.Constraint("Horizontal", 1),
    Sketcher.Constraint("Vertical", 2),
    Sketcher.Constraint("Horizontal", 3),
    Sketcher.Constraint("DistanceX", 1, 1, 1, 2, Q("7 mm")),
    Sketcher.Constraint("DistanceY", 0, 2, -1, 1, Q("7 mm")),
    Sketcher.Constraint("DistanceY", -1, 1, 2, 2, Q("7 mm")),
    Sketcher.Constraint("DistanceX", 1, 2, -1, 1, Q("11.5 mm")),
])
pad8 = doc.addObject("PartDesign::Pad", "Pad007")
body.addObject(pad8)
pad8.Profile = sketch11
pad8.Length = 2

sketch12 = doc.addObject("Sketcher::SketchObject", "Sketch011")
body.addObject(sketch12)
sketch12.AttachmentSupport = (doc.YZ_Plane, [""])
sketch12.MapMode = "FlatFace"
sketch12.AttachmentOffset = App.Placement(App.Vector(0, 0, -32), App.Rotation())
sketch12.addGeometry(Part.Circle(App.Vector(-3.5, -15, 0), App.Vector(0, 0, 1), 2), False)
sketch12.addConstraint([
    Sketcher.Constraint("Diameter", 0, Q("4 mm")),
    Sketcher.Constraint("DistanceY", 0, 3, -1, 1, Q("15 mm")),
    Sketcher.Constraint("DistanceX", 0, 3, -1, 1, Q("3.5 mm")),
])
pocket4 = doc.addObject("PartDesign::Pocket", "Pocket003")
body.addObject(pocket4)
pocket4.Profile = sketch12
pocket4.Length = 2
pocket4.Reversed = True

sketch13 = doc.addObject("Sketcher::SketchObject", "Sketch012")
body.addObject(sketch13)
sketch13.AttachmentSupport = (doc.XY_Plane, [""])
sketch13.MapMode = "FlatFace"
sketch13.AttachmentOffset = App.Placement(App.Vector(0, 0, 2), App.Rotation())
sketch13.addGeometry(Part.Circle(App.Vector(-15, -3.5, 0), App.Vector(0, 0, 1), 2), False)
sketch13.addConstraint([
    Sketcher.Constraint("Diameter", 0, Q("4 mm")),
    Sketcher.Constraint("DistanceX", 0, 3, -1, 1, Q("15 mm")),
    Sketcher.Constraint("DistanceY", 0, 3, -1, 1, Q("3.5 mm")),
])
pocket5 = doc.addObject("PartDesign::Pocket", "Pocket004")
body.addObject(pocket5)
pocket5.Profile = sketch13
pocket5.Length = 2

doc.recompute()
